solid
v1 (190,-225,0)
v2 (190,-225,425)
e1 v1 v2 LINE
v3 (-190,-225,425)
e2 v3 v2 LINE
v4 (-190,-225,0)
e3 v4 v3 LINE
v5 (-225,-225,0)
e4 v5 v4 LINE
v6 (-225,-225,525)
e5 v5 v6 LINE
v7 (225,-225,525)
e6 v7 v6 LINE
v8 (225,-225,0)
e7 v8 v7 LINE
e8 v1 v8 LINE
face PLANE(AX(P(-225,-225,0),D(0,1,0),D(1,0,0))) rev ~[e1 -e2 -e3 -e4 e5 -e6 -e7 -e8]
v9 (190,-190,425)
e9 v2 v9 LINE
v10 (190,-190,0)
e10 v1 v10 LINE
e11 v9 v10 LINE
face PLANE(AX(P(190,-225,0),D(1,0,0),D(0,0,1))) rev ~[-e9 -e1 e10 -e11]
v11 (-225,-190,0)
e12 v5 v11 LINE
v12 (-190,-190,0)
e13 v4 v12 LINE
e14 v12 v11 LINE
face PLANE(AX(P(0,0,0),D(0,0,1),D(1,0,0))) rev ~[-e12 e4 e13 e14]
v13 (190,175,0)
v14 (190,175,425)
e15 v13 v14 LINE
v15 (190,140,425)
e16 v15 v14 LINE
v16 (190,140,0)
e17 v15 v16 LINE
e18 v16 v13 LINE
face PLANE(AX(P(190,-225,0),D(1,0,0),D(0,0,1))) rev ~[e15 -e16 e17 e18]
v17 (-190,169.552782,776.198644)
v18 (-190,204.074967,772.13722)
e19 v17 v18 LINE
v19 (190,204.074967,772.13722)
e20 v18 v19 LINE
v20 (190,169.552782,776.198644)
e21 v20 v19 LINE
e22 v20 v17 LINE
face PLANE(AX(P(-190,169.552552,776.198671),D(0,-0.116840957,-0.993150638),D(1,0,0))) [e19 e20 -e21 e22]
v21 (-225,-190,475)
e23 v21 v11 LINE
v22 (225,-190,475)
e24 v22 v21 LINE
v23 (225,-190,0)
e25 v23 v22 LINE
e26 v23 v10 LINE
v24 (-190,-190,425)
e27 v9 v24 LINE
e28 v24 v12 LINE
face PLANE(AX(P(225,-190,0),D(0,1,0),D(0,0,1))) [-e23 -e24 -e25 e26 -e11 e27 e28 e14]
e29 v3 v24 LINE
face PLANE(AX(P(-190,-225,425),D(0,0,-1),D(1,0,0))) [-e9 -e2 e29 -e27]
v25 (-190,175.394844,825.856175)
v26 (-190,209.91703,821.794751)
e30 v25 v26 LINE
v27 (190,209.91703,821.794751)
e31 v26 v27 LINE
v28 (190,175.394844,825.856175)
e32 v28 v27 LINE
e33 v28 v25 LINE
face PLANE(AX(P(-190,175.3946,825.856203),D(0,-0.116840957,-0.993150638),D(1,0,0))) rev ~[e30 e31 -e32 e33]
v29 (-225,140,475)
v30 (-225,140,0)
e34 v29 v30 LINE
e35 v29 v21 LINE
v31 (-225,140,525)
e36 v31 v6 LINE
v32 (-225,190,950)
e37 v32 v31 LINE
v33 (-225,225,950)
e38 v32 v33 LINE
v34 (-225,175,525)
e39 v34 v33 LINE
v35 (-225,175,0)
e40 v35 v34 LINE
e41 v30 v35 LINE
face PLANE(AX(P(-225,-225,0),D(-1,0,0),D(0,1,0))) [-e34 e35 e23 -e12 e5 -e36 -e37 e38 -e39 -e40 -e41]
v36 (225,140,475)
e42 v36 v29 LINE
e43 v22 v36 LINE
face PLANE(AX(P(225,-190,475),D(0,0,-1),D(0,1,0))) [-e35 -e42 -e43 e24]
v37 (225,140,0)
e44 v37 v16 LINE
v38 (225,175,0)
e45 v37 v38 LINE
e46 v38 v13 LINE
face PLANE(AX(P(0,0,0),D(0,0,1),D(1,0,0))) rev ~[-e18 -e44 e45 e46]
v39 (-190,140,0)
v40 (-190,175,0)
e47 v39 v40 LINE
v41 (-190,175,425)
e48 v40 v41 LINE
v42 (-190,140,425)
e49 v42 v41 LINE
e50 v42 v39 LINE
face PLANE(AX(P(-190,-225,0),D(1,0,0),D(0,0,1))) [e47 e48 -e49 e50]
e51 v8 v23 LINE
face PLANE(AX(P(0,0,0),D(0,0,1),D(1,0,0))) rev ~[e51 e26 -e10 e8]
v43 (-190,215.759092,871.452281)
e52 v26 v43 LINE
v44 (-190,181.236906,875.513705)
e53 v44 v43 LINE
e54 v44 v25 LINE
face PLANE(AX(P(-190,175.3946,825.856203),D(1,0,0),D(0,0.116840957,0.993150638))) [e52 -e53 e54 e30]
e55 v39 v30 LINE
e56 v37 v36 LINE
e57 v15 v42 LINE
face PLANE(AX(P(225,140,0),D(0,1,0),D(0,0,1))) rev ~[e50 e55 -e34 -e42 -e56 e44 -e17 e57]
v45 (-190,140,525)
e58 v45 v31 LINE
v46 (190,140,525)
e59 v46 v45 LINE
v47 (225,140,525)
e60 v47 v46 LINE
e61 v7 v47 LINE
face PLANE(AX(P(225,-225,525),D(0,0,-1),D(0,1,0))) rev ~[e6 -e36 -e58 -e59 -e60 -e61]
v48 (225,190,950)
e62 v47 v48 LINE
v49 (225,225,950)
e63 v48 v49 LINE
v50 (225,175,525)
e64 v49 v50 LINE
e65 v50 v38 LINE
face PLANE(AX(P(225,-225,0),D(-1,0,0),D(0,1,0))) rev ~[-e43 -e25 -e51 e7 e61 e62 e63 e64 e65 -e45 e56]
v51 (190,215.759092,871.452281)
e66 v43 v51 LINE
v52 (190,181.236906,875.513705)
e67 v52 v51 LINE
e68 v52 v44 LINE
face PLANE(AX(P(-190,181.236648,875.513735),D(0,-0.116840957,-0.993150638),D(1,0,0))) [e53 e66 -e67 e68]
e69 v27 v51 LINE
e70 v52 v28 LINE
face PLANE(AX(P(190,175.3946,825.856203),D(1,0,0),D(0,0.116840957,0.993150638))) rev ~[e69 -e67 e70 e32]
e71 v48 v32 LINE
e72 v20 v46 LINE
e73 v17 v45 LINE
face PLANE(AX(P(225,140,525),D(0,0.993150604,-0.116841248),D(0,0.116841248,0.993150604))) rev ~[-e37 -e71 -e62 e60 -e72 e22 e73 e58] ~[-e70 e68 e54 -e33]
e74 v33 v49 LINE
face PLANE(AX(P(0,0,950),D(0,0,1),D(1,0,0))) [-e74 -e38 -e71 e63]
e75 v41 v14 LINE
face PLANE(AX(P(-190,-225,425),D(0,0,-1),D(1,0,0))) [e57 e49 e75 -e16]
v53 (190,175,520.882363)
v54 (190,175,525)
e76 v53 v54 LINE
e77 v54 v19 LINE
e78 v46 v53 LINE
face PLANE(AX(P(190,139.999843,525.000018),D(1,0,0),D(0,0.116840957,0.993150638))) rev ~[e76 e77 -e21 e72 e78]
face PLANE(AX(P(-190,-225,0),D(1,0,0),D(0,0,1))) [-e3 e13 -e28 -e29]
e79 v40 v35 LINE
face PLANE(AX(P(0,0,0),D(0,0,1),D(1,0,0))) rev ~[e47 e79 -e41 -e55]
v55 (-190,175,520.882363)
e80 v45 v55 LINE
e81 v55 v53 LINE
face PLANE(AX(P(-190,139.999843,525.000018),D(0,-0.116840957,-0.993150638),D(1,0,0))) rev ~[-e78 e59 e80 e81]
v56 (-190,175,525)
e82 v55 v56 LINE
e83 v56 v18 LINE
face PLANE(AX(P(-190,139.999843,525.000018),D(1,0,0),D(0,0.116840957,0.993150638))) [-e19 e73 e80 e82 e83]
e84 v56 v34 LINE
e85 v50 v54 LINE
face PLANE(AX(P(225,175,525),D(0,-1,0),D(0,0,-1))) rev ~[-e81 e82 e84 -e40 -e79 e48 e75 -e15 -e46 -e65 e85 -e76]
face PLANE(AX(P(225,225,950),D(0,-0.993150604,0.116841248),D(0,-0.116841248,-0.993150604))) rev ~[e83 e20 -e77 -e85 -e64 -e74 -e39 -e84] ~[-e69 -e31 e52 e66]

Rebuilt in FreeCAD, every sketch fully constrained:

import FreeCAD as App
import Part
import Sketcher
Q = App.Units.Quantity


def add_polygon(sketch, points):
    """Adds a closed chain of lines whose ends are joined by coincident constraints."""
    first, n = sketch.GeometryCount, len(points)
    for a, b in zip(points, points[1:] + points[:1]):
        sketch.addGeometry(Part.LineSegment(App.Vector(*a, 0), App.Vector(*b, 0)), False)
    for i in range(n):
        sketch.addConstraint(Sketcher.Constraint("Coincident", first + i, 2, first + (i + 1) % n, 1))

doc = App.newDocument("Part")
params = doc.addObject("Spreadsheet::Sheet", "Params")
for row, (alias, value) in enumerate([
    ("sketch1_width", "450 mm"),
    ("pad1_length", "950 mm"),
    ("sketch2_width", "365 mm"),
    ("sketch2_width2", "415 mm"),
    ("sketch2_width3", "330 mm"),
    ("sketch2_height", "425 mm"),
    ("sketch2_height2", "475 mm"),
    ("sketch3_width", "380 mm"),
    ("sketch3_height", "425 mm"),
    ("sketch4_width", "380 mm"),
    ("sketch4_height", "50 mm"),
], start=1):
    params.set(f"A{row}", alias)
    params.set(f"B{row}", "=" + value)
    params.setAlias(f"B{row}", alias)

body = doc.addObject("PartDesign::Body", "Body")

sketch1 = body.newObject("Sketcher::SketchObject", "Sketch")
sketch1.AttachmentSupport = (doc.getObject("XY_Plane"), [""])
sketch1.MapMode = "FlatFace"
add_polygon(sketch1, [(-225, 225), (-225, -225), (225, -225), (225, 225)])
sketch1.addConstraint([
    Sketcher.Constraint("Vertical", 0),
    Sketcher.Constraint("Horizontal", 1),
    Sketcher.Constraint("Vertical", 2),
    Sketcher.Constraint("Horizontal", 3),
    Sketcher.Constraint("Symmetric", 0, 2, 2, 2, -1, 1),
    Sketcher.Constraint("Equal", 3, 0),
    Sketcher.Constraint("DistanceX", 1, 1, 1, 2, Q("450 mm")),
])
sketch1.setExpression("Constraints[10]", "Params.sketch1_width")
pad1 = body.newObject("PartDesign::Pad", "Pad")
pad1.Profile = sketch1
pad1.setExpression("Length", "Params.pad1_length")

sketch2 = body.newObject("Sketcher::SketchObject", "Sketch001")
sketch2.AttachmentSupport = (doc.getObject("YZ_Plane"), [""])
sketch2.MapMode = "FlatFace"
sketch2.AttachmentOffset = App.Placement(App.Vector(0, 0, 225), App.Rotation())
add_polygon(sketch2, [(300, 512), (300, 504), (311, 504), (311, 512)])
add_polygon(sketch2, [(-225, 950), (-225, 525), (140, 525), (190, 950)])
add_polygon(sketch2, [(-190, 475), (-190, 0), (140, 0), (140, 475)])
add_polygon(sketch2, [(175, 0), (225, 0), (225, 950), (175, 525)])
sketch2.addConstraint([
    Sketcher.Constraint("Vertical", 0),
    Sketcher.Constraint("Horizontal", 1),
    Sketcher.Constraint("Vertical", 2),
    Sketcher.Constraint("Horizontal", 3),
    Sketcher.Constraint("Vertical", 4),
    Sketcher.Constraint("Horizontal", 5),
    Sketcher.Constraint("Horizontal", 7),
    Sketcher.Constraint("Vertical", 8),
    Sketcher.Constraint("Horizontal", 9),
    Sketcher.Constraint("Vertical", 10),
    Sketcher.Constraint("Horizontal", 11),
    Sketcher.Constraint("Horizontal", 12),
    Sketcher.Constraint("Vertical", 13),
    Sketcher.Constraint("Vertical", 15),
    Sketcher.Constraint("Symmetric", 7, 2, 13, 2, -2),
    Sketcher.Constraint("PointOnObject", 8, 2, -1),
    Sketcher.Constraint("PointOnObject", 12, 2, -1),
    Sketcher.Constraint("Parallel", 6, 14),
    Sketcher.Constraint("Horizontal", 5, 2, 14, 2),
    Sketcher.Constraint("Vertical", 5, 2, 9, 2),
    Sketcher.Constraint("DistanceX", 5, 1, 5, 2, Q("365 mm")),
    Sketcher.Constraint("DistanceX", 7, 2, 7, 1, Q("415 mm")),
    Sketcher.Constraint("DistanceX", 9, 1, 9, 2, Q("330 mm")),
    Sketcher.Constraint("DistanceY", 4, 2, 4, 1, Q("425 mm")),
    Sketcher.Constraint("DistanceY", 8, 2, 8, 1, Q("475 mm")),
    Sketcher.Constraint("DistanceY", 13, 1, 13, 2, Q("950 mm")),
    Sketcher.Constraint("DistanceX", 4, 2, -1, 1, Q("225 mm")),
    Sketcher.Constraint("DistanceY", 0, 2, 0, 1, Q("7.539391 mm")),
    Sketcher.Constraint("DistanceX", 1, 1, 1, 2, Q("11.309118 mm")),
    Sketcher.Constraint("DistanceX", -1, 1, 0, 2, Q("299.691319 mm")),
    Sketcher.Constraint("DistanceY", -1, 1, 0, 2, Q("504.412234 mm")),
])
sketch2.setExpression("Constraints[36]", "Params.sketch2_width")
sketch2.setExpression("Constraints[37]", "Params.sketch2_width2")
sketch2.setExpression("Constraints[38]", "Params.sketch2_width3")
sketch2.setExpression("Constraints[39]", "Params.sketch2_height")
sketch2.setExpression("Constraints[40]", "Params.sketch2_height2")
pocket1 = body.newObject("PartDesign::Pocket", "Pocket")
pocket1.Profile = sketch2
pocket1.Type = "ThroughAll"

sketch3 = body.newObject("Sketcher::SketchObject", "Sketch002")
sketch3.AttachmentSupport = (doc.getObject("XZ_Plane"), [""])
sketch3.MapMode = "FlatFace"
sketch3.AttachmentOffset = App.Placement(App.Vector(0, 0, 225), App.Rotation())
add_polygon(sketch3, [(-190, 425), (-190, 0), (190, 0), (190, 425)])
sketch3.addConstraint([
    Sketcher.Constraint("Vertical", 0),
    Sketcher.Constraint("Horizontal", 1),
    Sketcher.Constraint("Vertical", 2),
    Sketcher.Constraint("Horizontal", 3),
    Sketcher.Constraint("Symmetric", 0, 2, 1, 2, -1, 1),
    Sketcher.Constraint("DistanceX", 1, 1, 1, 2, Q("380 mm")),
    Sketcher.Constraint("DistanceY", 0, 2, 0, 1, Q("425 mm")),
])
sketch3.setExpression("Constraints[9]", "Params.sketch3_width")
sketch3.setExpression("Constraints[10]", "Params.sketch3_height")
pocket2 = body.newObject("PartDesign::Pocket", "Pocket001")
pocket2.Profile = sketch3
pocket2.Type = "ThroughAll"

sketch4 = body.newObject("Sketcher::SketchObject", "Sketch003")
sketch4.Placement = App.Placement(App.Vector(0, 77.167235, -9.078498), App.Rotation(App.Vector(1, 0, 0), App.Vector(0, 0.116840957, 0.993150638), App.Vector(0, -0.993150638, 0.116840957), "ZXY"))
add_polygon(sketch4, [(-190, 891), (-190, 841), (190, 841), (190, 891)])
add_polygon(sketch4, [(-190, 791), (-190, 538), (190, 538), (190, 791)])
sketch4.addConstraint([
    Sketcher.Constraint("Vertical", 0),
    Sketcher.Constraint("Horizontal", 1),
    Sketcher.Constraint("Vertical", 2),
    Sketcher.Constraint("Horizontal", 3),
    Sketcher.Constraint("Vertical", 4),
    Sketcher.Constraint("Horizontal", 5),
    Sketcher.Constraint("Vertical", 6),
    Sketcher.Constraint("Horizontal", 7),
    Sketcher.Constraint("Vertical", 3, 2, 4, 2),
    Sketcher.Constraint("Vertical", 2, 2, 5, 2),
    Sketcher.Constraint("DistanceX", 1, 1, 1, 2, Q("380 mm")),
    Sketcher.Constraint("DistanceY", 0, 2, 0, 1, Q("50 mm")),
    Sketcher.Constraint("DistanceX", 0, 2, -1, 1, Q("190 mm")),
    Sketcher.Constraint("DistanceY", 6, 2, 1, 2, Q("50 mm")),
    Sketcher.Constraint("DistanceY", 4, 2, 4, 1, Q("252.931069 mm")),
    Sketcher.Constraint("DistanceY", -1, 1, 0, 2, Q("840.69291 mm")),
])
sketch4.setExpression("Constraints[18]", "Params.sketch4_width")
sketch4.setExpression("Constraints[19]", "Params.sketch4_height")
pocket3 = body.newObject("PartDesign::Pocket", "Pocket002")
pocket3.Profile = sketch4
pocket3.Type = "ThroughAll"

doc.recompute()
